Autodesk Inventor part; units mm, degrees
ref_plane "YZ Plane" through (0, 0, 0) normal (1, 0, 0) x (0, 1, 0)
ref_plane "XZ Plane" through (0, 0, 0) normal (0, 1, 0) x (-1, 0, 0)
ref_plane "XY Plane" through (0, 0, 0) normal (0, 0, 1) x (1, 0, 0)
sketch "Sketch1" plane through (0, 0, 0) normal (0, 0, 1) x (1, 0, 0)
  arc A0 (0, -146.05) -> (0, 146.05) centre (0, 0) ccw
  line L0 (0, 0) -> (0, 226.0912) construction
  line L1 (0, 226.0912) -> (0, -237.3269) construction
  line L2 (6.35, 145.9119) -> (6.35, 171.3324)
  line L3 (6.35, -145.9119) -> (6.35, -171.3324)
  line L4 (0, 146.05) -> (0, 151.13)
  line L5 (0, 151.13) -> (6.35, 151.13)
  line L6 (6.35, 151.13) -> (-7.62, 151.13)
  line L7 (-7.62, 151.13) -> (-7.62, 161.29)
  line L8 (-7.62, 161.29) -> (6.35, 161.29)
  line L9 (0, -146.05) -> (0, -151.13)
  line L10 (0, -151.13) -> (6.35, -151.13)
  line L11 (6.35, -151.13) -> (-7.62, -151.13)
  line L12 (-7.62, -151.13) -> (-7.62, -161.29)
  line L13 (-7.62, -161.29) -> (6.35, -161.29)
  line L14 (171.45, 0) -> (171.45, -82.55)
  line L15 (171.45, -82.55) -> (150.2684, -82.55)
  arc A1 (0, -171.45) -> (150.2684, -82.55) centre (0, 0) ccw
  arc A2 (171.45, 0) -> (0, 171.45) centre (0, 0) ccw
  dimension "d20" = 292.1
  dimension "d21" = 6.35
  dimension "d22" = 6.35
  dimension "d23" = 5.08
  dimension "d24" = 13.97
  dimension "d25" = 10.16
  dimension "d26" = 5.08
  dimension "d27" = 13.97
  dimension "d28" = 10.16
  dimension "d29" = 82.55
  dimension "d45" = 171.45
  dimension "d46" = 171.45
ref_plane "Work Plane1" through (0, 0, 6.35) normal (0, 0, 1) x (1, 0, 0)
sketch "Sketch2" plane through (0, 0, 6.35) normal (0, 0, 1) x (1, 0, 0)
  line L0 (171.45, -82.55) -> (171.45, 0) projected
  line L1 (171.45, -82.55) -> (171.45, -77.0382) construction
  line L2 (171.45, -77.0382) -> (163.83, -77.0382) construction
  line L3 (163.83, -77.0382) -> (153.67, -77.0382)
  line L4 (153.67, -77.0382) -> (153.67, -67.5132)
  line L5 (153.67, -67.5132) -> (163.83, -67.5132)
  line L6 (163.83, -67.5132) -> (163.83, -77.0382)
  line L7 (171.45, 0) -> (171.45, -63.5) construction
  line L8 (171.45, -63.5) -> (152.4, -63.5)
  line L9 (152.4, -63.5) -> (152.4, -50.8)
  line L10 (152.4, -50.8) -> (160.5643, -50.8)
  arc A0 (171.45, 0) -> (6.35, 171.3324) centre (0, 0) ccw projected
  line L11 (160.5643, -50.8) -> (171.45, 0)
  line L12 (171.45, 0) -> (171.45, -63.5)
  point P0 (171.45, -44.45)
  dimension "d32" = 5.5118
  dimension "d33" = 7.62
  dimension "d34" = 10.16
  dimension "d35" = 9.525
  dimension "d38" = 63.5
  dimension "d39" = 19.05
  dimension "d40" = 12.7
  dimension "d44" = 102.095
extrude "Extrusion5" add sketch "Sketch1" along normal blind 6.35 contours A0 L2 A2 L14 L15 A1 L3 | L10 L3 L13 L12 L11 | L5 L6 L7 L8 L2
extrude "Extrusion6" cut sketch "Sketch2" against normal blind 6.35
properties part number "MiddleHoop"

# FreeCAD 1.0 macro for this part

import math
import FreeCAD as App
import Part
import Sketcher
Q = App.Units.Quantity

doc = App.newDocument("Part")
params = doc.addObject("Spreadsheet::Sheet", "Params")
for row, (alias, value) in enumerate([
    ("sketch1_radius", "5.75 in"),
    ("sketch1_radius2", "6.75 in"),
    ("sketch1_height", "0.4 in"),
    ("sketch1_width", "0.55 in"),
    ("sketch1_height2", "3.25 in"),
    ("pad1_length", "0.25 in"),
    ("sketch2_width", "0.4 in"),
    ("sketch2_height", "2.5 in"),
    ("sketch2_height2", "0.5 in"),
    ("sketch2_width2", "0.75 in"),
    ("sketch2_height3", "0.375 in"),
    ("pocket1_length", "0.25 in"),
], start=1):
    params.set(f"A{row}", alias)
    params.set(f"B{row}", "=" + value)
    params.setAlias(f"B{row}", alias)

body = doc.addObject("PartDesign::Body", "Body")

# Sketch on XY plane
sketch1 = body.newObject("Sketcher::SketchObject", "Sketch")
sketch1.AttachmentSupport = (doc.getObject("XY_Plane"), [""])
sketch1.MapMode = "FlatFace"
sketch1.addGeometry(Part.ArcOfCircle(Part.Circle(App.Vector(0, 0, 0), App.Vector(0, 0, 1), 146.05), math.radians(-87.508094), math.radians(87.508094)), False)
sketch1.addGeometry(Part.LineSegment(App.Vector(6.35, -145.9119, 0), App.Vector(6.35, -151.13, 0)), False)
sketch1.addGeometry(Part.LineSegment(App.Vector(6.35, -151.13, 0), App.Vector(-7.62, -151.13, 0)), False)
sketch1.addGeometry(Part.LineSegment(App.Vector(-7.62, -151.13, 0), App.Vector(-7.62, -161.29, 0)), False)
sketch1.addGeometry(Part.LineSegment(App.Vector(-7.62, -161.29, 0), App.Vector(6.35, -161.29, 0)), False)
sketch1.addGeometry(Part.LineSegment(App.Vector(6.35, -161.29, 0), App.Vector(6.35, -171.3324, 0)), False)
sketch1.addGeometry(Part.ArcOfCircle(Part.Circle(App.Vector(0, 0, 0), App.Vector(0, 0, 1), 171.45), math.radians(-87.877449), math.radians(-28.782209)), False)
sketch1.addGeometry(Part.LineSegment(App.Vector(150.2684, -82.55, 0), App.Vector(171.45, -82.55, 0)), False)
sketch1.addGeometry(Part.LineSegment(App.Vector(171.45, -82.55, 0), App.Vector(171.45, 0, 0)), False)
sketch1.addGeometry(Part.ArcOfCircle(Part.Circle(App.Vector(0, 0, 0), App.Vector(0, 0, 1), 171.45), math.radians(0), math.radians(87.877449)), False)
sketch1.addGeometry(Part.LineSegment(App.Vector(6.35, 171.3324, 0), App.Vector(6.35, 161.29, 0)), False)
sketch1.addGeometry(Part.LineSegment(App.Vector(6.35, 161.29, 0), App.Vector(-7.62, 161.29, 0)), False)
sketch1.addGeometry(Part.LineSegment(App.Vector(-7.62, 161.29, 0), App.Vector(-7.62, 151.13, 0)), False)
sketch1.addGeometry(Part.LineSegment(App.Vector(-7.62, 151.13, 0), App.Vector(6.35, 151.13, 0)), False)
sketch1.addGeometry(Part.LineSegment(App.Vector(6.35, 151.13, 0), App.Vector(6.35, 145.9119, 0)), False)
sketch1.addConstraint(Sketcher.Constraint("Coincident", 0, 1, 1, 1))
sketch1.addConstraint(Sketcher.Constraint("Coincident", 1, 2, 2, 1))
sketch1.addConstraint(Sketcher.Constraint("Coincident", 2, 2, 3, 1))
sketch1.addConstraint(Sketcher.Constraint("Coincident", 3, 2, 4, 1))
sketch1.addConstraint(Sketcher.Constraint("Coincident", 4, 2, 5, 1))
sketch1.addConstraint(Sketcher.Constraint("Coincident", 5, 2, 6, 1))
sketch1.addConstraint(Sketcher.Constraint("Coincident", 6, 2, 7, 1))
sketch1.addConstraint(Sketcher.Constraint("Coincident", 7, 2, 8, 1))
sketch1.addConstraint(Sketcher.Constraint("Tangent", 8, 2, 9, 1))
sketch1.addConstraint(Sketcher.Constraint("Coincident", 9, 2, 10, 1))
sketch1.addConstraint(Sketcher.Constraint("Coincident", 10, 2, 11, 1))
sketch1.addConstraint(Sketcher.Constraint("Coincident", 11, 2, 12, 1))
sketch1.addConstraint(Sketcher.Constraint("Coincident", 12, 2, 13, 1))
sketch1.addConstraint(Sketcher.Constraint("Coincident", 13, 2, 14, 1))
sketch1.addConstraint(Sketcher.Constraint("Coincident", 14, 2, 0, 2))
sketch1.addConstraint(Sketcher.Constraint("Vertical", 1))
sketch1.addConstraint(Sketcher.Constraint("Horizontal", 2))
sketch1.addConstraint(Sketcher.Constraint("Vertical", 3))
sketch1.addConstraint(Sketcher.Constraint("Horizontal", 4))
sketch1.addConstraint(Sketcher.Constraint("Vertical", 5))
sketch1.addConstraint(Sketcher.Constraint("Horizontal", 7))
sketch1.addConstraint(Sketcher.Constraint("Vertical", 8))
sketch1.addConstraint(Sketcher.Constraint("Vertical", 10))
sketch1.addConstraint(Sketcher.Constraint("Horizontal", 11))
sketch1.addConstraint(Sketcher.Constraint("Vertical", 12))
sketch1.addConstraint(Sketcher.Constraint("Horizontal", 13))
sketch1.addConstraint(Sketcher.Constraint("Vertical", 14))
sketch1.addConstraint(Sketcher.Constraint("Coincident", 0, 3, -1, 1))
sketch1.addConstraint(Sketcher.Constraint("Coincident", 6, 3, -1, 1))
sketch1.addConstraint(Sketcher.Constraint("Coincident", 9, 3, -1, 1))
sketch1.addConstraint(Sketcher.Constraint("Equal", 6, 9))
sketch1.addConstraint(Sketcher.Constraint("Symmetric", 4, 2, 10, 2, -1))
sketch1.addConstraint(Sketcher.Constraint("Symmetric", 2, 2, 12, 2, -1))
sketch1.addConstraint(Sketcher.Constraint("Vertical", 1, 2, 4, 2))
sketch1.addConstraint(Sketcher.Constraint("Vertical", 10, 2, 13, 2))
sketch1.addConstraint(Sketcher.Constraint("Radius", 0, Q("5.75 in")))
sketch1.addConstraint(Sketcher.Constraint("Radius", 6, Q("6.75 in")))
sketch1.addConstraint(Sketcher.Constraint("DistanceY", 3, 2, 3, 1, Q("0.4 in")))
sketch1.addConstraint(Sketcher.Constraint("DistanceX", 2, 2, 2, 1, Q("0.55 in")))
sketch1.addConstraint(Sketcher.Constraint("DistanceY", 8, 1, 8, 2, Q("3.25 in")))
sketch1.addConstraint(Sketcher.Constraint("DistanceX", -1, 1, 1, 2, Q("0.25 in")))
sketch1.addConstraint(Sketcher.Constraint("DistanceY", 1, 2, 7, 2, Q("2.7 in")))
sketch1.setExpression("Constraints[35]", "Params.sketch1_radius")
sketch1.setExpression("Constraints[36]", "Params.sketch1_radius2")
sketch1.setExpression("Constraints[37]", "Params.sketch1_height")
sketch1.setExpression("Constraints[38]", "Params.sketch1_width")
sketch1.setExpression("Constraints[39]", "Params.sketch1_height2")
pad1 = body.newObject("PartDesign::Pad", "Pad")
pad1.Profile = sketch1
pad1.setExpression("Length", "Params.pad1_length")

# Sketch on XY plane
sketch2 = body.newObject("Sketcher::SketchObject", "Sketch001")
sketch2.AttachmentSupport = (doc.getObject("XY_Plane"), [""])
sketch2.MapMode = "FlatFace"
sketch2.AttachmentOffset = App.Placement(App.Vector(0, 0, 0.25 * 25.4), App.Rotation())
sketch2.addGeometry(Part.LineSegment(App.Vector(152.4, -63.5, 0), App.Vector(171.45, -63.5, 0)), False)
sketch2.addGeometry(Part.LineSegment(App.Vector(171.45, -63.5, 0), App.Vector(171.45, 0, 0)), False)
sketch2.addGeometry(Part.LineSegment(App.Vector(171.45, 0, 0), App.Vector(160.5643, -50.8, 0)), False)
sketch2.addGeometry(Part.LineSegment(App.Vector(160.5643, -50.8, 0), App.Vector(152.4, -50.8, 0)), False)
sketch2.addGeometry(Part.LineSegment(App.Vector(152.4, -50.8, 0), App.Vector(152.4, -63.5, 0)), False)
sketch2.addGeometry(Part.LineSegment(App.Vector(153.67, -77.0382, 0), App.Vector(163.83, -77.0382, 0)), False)
sketch2.addGeometry(Part.LineSegment(App.Vector(163.83, -77.0382, 0), App.Vector(163.83, -67.5132, 0)), False)
sketch2.addGeometry(Part.LineSegment(App.Vector(163.83, -67.5132, 0), App.Vector(153.67, -67.5132, 0)), False)
sketch2.addGeometry(Part.LineSegment(App.Vector(153.67, -67.5132, 0), App.Vector(153.67, -77.0382, 0)), False)
sketch2.addConstraint(Sketcher.Constraint("Coincident", 0, 2, 1, 1))
sketch2.addConstraint(Sketcher.Constraint("Coincident", 1, 2, 2, 1))
sketch2.addConstraint(Sketcher.Constraint("Coincident", 2, 2, 3, 1))
sketch2.addConstraint(Sketcher.Constraint("Coincident", 3, 2, 4, 1))
sketch2.addConstraint(Sketcher.Constraint("Coincident", 4, 2, 0, 1))
sketch2.addConstraint(Sketcher.Constraint("Coincident", 5, 2, 6, 1))
sketch2.addConstraint(Sketcher.Constraint("Coincident", 6, 2, 7, 1))
sketch2.addConstraint(Sketcher.Constraint("Coincident", 7, 2, 8, 1))
sketch2.addConstraint(Sketcher.Constraint("Coincident", 8, 2, 5, 1))
sketch2.addConstraint(Sketcher.Constraint("Horizontal", 0))
sketch2.addConstraint(Sketcher.Constraint("Vertical", 1))
sketch2.addConstraint(Sketcher.Constraint("Horizontal", 3))
sketch2.addConstraint(Sketcher.Constraint("Vertical", 4))
sketch2.addConstraint(Sketcher.Constraint("Horizontal", 5))
sketch2.addConstraint(Sketcher.Constraint("Vertical", 6))
sketch2.addConstraint(Sketcher.Constraint("Horizontal", 7))
sketch2.addConstraint(Sketcher.Constraint("Vertical", 8))
sketch2.addConstraint(Sketcher.Constraint("PointOnObject", 1, 2, -1))
sketch2.addConstraint(Sketcher.Constraint("DistanceX", 5, 1, 5, 2, Q("0.4 in")))
sketch2.addConstraint(Sketcher.Constraint("DistanceY", 1, 1, 1, 2, Q("2.5 in")))
sketch2.addConstraint(Sketcher.Constraint("DistanceY", 4, 2, 4, 1, Q("0.5 in")))
sketch2.addConstraint(Sketcher.Constraint("DistanceX", 0, 1, 0, 2, Q("0.75 in")))
sketch2.addConstraint(Sketcher.Constraint("DistanceX", 5, 2, 0, 2, Q("0.3 in")))
sketch2.addConstraint(Sketcher.Constraint("DistanceY", 6, 1, 6, 2, Q("0.375 in")))
sketch2.addConstraint(Sketcher.Constraint("DistanceX", -1, 1, 3, 2, Q("6 in")))
sketch2.addConstraint(Sketcher.Constraint("DistanceY", 5, 2, -1, 1, Q("3.033 in")))
sketch2.addConstraint(Sketcher.Constraint("Distance", 2, Q("2.0454 in")))
sketch2.setExpression("Constraints[18]", "Params.sketch2_width")
sketch2.setExpression("Constraints[19]", "Params.sketch2_height")
sketch2.setExpression("Constraints[20]", "Params.sketch2_height2")
sketch2.setExpression("Constraints[21]", "Params.sketch2_width2")
sketch2.setExpression("Constraints[23]", "Params.sketch2_height3")
pocket1 = body.newObject("PartDesign::Pocket", "Pocket")
pocket1.Profile = sketch2
pocket1.setExpression("Length", "Params.pocket1_length")

doc.recompute()
